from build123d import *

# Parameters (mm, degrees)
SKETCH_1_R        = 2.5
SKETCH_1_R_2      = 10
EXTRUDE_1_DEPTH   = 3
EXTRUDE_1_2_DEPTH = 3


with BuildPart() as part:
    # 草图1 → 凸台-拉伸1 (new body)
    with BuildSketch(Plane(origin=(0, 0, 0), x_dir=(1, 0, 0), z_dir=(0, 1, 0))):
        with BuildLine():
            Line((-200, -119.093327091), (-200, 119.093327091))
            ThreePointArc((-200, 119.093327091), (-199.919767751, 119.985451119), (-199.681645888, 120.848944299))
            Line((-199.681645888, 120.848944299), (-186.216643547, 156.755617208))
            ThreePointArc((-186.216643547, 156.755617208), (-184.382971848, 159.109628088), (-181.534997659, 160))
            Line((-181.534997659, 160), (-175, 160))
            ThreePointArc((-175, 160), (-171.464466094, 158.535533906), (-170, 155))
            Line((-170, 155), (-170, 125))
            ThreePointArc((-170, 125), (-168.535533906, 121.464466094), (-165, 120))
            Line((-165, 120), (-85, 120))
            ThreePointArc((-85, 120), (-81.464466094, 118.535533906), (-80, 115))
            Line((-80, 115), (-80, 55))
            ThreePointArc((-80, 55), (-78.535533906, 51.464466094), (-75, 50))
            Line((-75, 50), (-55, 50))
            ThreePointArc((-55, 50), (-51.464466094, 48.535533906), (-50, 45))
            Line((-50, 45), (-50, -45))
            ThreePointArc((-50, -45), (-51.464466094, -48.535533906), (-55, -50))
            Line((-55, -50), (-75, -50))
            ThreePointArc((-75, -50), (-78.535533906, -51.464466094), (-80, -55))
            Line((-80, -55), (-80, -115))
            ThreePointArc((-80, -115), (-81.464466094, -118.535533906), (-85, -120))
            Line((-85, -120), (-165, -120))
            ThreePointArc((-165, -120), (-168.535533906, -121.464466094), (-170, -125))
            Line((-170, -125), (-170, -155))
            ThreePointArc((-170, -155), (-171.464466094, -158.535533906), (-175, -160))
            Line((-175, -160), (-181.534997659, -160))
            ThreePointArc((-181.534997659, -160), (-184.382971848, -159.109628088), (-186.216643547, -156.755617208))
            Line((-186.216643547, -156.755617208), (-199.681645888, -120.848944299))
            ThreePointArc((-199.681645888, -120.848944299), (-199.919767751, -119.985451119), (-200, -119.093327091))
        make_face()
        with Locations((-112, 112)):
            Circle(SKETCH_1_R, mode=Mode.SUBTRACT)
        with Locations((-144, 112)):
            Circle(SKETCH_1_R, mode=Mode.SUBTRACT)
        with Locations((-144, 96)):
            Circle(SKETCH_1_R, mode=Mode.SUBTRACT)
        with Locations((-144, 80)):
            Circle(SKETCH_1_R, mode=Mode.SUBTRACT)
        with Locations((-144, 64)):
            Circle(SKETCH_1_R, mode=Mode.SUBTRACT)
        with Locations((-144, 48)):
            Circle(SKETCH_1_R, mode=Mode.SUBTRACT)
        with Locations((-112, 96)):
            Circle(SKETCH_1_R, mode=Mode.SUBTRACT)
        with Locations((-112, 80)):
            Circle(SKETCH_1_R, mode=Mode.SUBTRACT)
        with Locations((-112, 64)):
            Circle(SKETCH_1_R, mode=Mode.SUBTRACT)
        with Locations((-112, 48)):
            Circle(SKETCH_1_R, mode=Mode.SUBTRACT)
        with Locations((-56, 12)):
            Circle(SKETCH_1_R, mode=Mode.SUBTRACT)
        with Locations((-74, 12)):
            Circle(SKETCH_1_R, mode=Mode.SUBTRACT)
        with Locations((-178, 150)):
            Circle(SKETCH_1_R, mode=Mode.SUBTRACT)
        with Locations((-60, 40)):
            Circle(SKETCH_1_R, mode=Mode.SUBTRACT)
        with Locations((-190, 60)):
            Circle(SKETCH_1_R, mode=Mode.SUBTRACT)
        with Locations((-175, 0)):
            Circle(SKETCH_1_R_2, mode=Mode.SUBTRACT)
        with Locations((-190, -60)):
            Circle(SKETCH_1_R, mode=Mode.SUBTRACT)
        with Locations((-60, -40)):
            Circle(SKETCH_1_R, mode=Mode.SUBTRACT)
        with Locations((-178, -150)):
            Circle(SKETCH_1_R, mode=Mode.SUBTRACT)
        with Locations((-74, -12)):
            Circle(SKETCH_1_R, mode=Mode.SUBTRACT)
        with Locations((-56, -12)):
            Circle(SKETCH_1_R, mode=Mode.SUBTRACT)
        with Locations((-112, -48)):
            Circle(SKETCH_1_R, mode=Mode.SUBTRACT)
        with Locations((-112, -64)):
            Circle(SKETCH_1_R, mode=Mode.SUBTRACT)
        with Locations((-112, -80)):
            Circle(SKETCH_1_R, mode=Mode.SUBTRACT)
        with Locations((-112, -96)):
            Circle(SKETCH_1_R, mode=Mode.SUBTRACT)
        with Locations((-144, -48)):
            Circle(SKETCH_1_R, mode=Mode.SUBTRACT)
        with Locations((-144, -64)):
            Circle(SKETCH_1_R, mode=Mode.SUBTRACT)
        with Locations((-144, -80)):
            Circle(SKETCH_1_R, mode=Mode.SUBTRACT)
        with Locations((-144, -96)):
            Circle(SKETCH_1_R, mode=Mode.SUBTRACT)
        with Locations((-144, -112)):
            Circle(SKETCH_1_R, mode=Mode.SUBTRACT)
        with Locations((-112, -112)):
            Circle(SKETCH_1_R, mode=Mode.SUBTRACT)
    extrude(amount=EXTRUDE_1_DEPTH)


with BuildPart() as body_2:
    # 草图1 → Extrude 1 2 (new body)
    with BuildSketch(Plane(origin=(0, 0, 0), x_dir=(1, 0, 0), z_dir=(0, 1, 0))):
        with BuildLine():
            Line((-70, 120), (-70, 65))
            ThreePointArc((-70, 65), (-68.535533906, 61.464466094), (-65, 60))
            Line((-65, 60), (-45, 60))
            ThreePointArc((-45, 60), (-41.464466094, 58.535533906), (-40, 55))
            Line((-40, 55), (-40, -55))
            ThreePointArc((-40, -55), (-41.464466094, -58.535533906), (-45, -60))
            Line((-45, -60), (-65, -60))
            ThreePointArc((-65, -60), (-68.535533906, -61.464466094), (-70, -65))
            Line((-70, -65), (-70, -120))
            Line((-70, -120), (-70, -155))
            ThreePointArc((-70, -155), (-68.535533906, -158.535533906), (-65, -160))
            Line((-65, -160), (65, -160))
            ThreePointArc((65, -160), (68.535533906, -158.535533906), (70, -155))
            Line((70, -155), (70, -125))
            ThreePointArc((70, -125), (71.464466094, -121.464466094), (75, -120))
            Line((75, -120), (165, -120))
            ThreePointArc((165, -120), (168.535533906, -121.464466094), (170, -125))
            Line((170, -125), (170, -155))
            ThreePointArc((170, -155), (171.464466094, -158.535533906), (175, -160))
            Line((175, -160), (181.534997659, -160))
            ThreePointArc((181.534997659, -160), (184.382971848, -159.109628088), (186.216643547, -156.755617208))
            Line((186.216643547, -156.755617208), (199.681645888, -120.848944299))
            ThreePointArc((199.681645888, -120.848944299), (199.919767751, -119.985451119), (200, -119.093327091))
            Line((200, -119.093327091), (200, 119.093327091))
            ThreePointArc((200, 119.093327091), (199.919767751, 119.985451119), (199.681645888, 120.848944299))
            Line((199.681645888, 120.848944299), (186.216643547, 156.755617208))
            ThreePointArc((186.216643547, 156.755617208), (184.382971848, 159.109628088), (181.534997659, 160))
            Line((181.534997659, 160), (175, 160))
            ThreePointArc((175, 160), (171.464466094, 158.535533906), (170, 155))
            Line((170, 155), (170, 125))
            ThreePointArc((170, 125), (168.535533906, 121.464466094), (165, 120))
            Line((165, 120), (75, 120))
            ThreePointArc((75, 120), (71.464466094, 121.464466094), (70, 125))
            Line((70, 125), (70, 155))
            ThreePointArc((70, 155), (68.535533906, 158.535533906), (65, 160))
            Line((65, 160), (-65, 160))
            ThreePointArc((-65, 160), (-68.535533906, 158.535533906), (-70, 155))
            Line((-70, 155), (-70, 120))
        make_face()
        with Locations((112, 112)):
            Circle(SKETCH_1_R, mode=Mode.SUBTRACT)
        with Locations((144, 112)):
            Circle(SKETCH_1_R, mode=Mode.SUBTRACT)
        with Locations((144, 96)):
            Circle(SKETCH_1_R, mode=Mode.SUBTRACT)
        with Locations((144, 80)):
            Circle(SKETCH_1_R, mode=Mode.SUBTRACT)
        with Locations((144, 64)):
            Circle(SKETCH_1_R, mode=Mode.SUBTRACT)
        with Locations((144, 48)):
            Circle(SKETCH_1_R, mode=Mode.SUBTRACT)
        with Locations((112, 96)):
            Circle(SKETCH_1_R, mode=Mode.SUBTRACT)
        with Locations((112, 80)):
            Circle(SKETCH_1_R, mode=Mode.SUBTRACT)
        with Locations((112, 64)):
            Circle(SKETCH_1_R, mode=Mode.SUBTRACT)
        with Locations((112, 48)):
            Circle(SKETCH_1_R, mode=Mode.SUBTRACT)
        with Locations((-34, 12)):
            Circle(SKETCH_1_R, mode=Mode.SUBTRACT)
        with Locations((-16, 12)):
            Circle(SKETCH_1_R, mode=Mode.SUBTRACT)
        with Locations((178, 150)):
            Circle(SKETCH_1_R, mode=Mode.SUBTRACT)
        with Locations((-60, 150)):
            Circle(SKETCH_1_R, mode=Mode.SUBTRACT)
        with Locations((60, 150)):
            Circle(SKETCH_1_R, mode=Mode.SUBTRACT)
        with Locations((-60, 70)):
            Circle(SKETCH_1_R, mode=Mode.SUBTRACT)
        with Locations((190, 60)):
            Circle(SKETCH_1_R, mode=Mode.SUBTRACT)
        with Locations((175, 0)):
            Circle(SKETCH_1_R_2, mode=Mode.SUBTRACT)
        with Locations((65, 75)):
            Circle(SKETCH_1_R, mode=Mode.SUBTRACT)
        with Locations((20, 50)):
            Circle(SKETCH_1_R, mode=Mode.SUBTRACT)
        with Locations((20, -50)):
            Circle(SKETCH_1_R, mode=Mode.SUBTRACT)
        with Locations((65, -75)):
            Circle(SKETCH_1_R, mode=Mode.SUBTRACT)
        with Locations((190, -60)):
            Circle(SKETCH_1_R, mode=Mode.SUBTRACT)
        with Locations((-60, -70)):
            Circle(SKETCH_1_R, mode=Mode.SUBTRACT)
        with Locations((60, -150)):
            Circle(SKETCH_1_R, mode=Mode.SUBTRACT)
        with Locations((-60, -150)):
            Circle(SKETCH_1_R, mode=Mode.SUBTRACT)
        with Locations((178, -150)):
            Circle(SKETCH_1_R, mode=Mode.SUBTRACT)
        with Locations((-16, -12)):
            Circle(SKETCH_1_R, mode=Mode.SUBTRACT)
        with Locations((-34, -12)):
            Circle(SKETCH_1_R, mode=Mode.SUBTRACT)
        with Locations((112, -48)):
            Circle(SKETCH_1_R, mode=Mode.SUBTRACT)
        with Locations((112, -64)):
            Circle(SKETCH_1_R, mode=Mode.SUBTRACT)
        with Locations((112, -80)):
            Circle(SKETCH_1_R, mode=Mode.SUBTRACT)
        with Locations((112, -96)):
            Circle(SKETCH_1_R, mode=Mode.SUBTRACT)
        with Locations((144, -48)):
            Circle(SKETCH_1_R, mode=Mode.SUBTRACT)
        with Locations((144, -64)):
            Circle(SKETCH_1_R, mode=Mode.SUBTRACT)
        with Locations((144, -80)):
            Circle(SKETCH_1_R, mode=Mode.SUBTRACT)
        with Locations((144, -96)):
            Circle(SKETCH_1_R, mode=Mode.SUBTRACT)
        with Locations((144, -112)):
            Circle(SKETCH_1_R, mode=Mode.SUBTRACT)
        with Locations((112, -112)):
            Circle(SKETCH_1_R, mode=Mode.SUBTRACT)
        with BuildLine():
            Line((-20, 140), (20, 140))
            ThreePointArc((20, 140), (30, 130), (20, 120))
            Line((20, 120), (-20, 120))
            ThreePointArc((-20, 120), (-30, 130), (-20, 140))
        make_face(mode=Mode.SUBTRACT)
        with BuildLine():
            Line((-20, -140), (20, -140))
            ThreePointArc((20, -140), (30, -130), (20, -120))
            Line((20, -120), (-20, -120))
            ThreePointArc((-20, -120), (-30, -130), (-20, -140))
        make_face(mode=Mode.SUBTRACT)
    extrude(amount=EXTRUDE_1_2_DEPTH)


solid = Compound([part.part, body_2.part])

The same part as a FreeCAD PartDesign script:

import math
import FreeCAD as App
import Part
import Sketcher

V = App.Vector

doc = App.newDocument("Part")
body = doc.addObject("PartDesign::Body", "Body")

# Sketch on XZ plane
sketch1 = body.newObject("Sketcher::SketchObject", "Sketch")
sketch1.AttachmentSupport = (doc.getObject("XZ_Plane"), [""])
sketch1.MapMode = "FlatFace"
sketch1.addGeometry([
    Part.LineSegment(V(-200, -119.1, 0), V(-200, 119.1, 0)),  # 0
    Part.ArcOfCircle(Part.Circle(V(-195, 119.1, 0), V(0, 0, 1), 5), math.radians(159), math.radians(180)),  # 1
    Part.LineSegment(V(-199.7, 120.8, 0), V(-186.2, 156.8, 0)),  # 2
    Part.ArcOfCircle(Part.Circle(V(-181.5, 155, 0), V(0, 0, 1), 5), math.radians(90), math.radians(159)),  # 3
    Part.LineSegment(V(-181.5, 160, 0), V(-175, 160, 0)),  # 4
    Part.ArcOfCircle(Part.Circle(V(-175, 155, 0), V(0, 0, 1), 5), math.radians(0), math.radians(90)),  # 5
    Part.LineSegment(V(-170, 155, 0), V(-170, 125, 0)),  # 6
    Part.ArcOfCircle(Part.Circle(V(-165, 125, 0), V(0, 0, 1), 5), math.radians(180), math.radians(270)),  # 7
    Part.LineSegment(V(-165, 120, 0), V(-85, 120, 0)),  # 8
    Part.ArcOfCircle(Part.Circle(V(-85, 115, 0), V(0, 0, 1), 5), math.radians(0), math.radians(90)),  # 9
    Part.LineSegment(V(-80, 115, 0), V(-80, 55, 0)),  # 10
    Part.ArcOfCircle(Part.Circle(V(-75, 55, 0), V(0, 0, 1), 5), math.radians(180), math.radians(270)),  # 11
    Part.LineSegment(V(-75, 50, 0), V(-55, 50, 0)),  # 12
    Part.ArcOfCircle(Part.Circle(V(-55, 45, 0), V(0, 0, 1), 5), math.radians(0), math.radians(90)),  # 13
    Part.LineSegment(V(-50, 45, 0), V(-50, -45, 0)),  # 14
    Part.ArcOfCircle(Part.Circle(V(-55, -45, 0), V(0, 0, 1), 5), math.radians(-90), math.radians(0)),  # 15
    Part.LineSegment(V(-55, -50, 0), V(-75, -50, 0)),  # 16
    Part.ArcOfCircle(Part.Circle(V(-75, -55, 0), V(0, 0, 1), 5), math.radians(90), math.radians(180)),  # 17
    Part.LineSegment(V(-80, -55, 0), V(-80, -115, 0)),  # 18
    Part.ArcOfCircle(Part.Circle(V(-85, -115, 0), V(0, 0, 1), 5), math.radians(-90), math.radians(0)),  # 19
    Part.LineSegment(V(-85, -120, 0), V(-165, -120, 0)),  # 20
    Part.ArcOfCircle(Part.Circle(V(-165, -125, 0), V(0, 0, 1), 5), math.radians(90), math.radians(180)),  # 21
    Part.LineSegment(V(-170, -125, 0), V(-170, -155, 0)),  # 22
    Part.ArcOfCircle(Part.Circle(V(-175, -155, 0), V(0, 0, 1), 5), math.radians(-90), math.radians(0)),  # 23
    Part.LineSegment(V(-175, -160, 0), V(-181.5, -160, 0)),  # 24
    Part.ArcOfCircle(Part.Circle(V(-181.5, -155, 0), V(0, 0, 1), 5), math.radians(-159), math.radians(-90)),  # 25
    Part.LineSegment(V(-186.2, -156.8, 0), V(-199.7, -120.8, 0)),  # 26
    Part.ArcOfCircle(Part.Circle(V(-195, -119.1, 0), V(0, 0, 1), 5), math.radians(180), math.radians(201)),  # 27
    Part.Circle(V(-112, 112, 0), V(0, 0, 1), 2.5),  # 28
    Part.Circle(V(-112, 96, 0), V(0, 0, 1), 2.5),  # 29
    Part.Circle(V(-112, 80, 0), V(0, 0, 1), 2.5),  # 30
    Part.Circle(V(-60, 40, 0), V(0, 0, 1), 2.5),  # 31
    Part.Circle(V(-56, 12, 0), V(0, 0, 1), 2.5),  # 32
    Part.Circle(V(-74, 12, 0), V(0, 0, 1), 2.5),  # 33
    Part.Circle(V(-112, 64, 0), V(0, 0, 1), 2.5),  # 34
    Part.Circle(V(-112, 48, 0), V(0, 0, 1), 2.5),  # 35
    Part.Circle(V(-144, 112, 0), V(0, 0, 1), 2.5),  # 36
    Part.Circle(V(-144, 96, 0), V(0, 0, 1), 2.5),  # 37
    Part.Circle(V(-144, 80, 0), V(0, 0, 1), 2.5),  # 38
    Part.Circle(V(-178, 150, 0), V(0, 0, 1), 2.5),  # 39
    Part.Circle(V(-144, 64, 0), V(0, 0, 1), 2.5),  # 40
    Part.Circle(V(-144, 48, 0), V(0, 0, 1), 2.5),  # 41
    Part.Circle(V(-190, 60, 0), V(0, 0, 1), 2.5),  # 42
    Part.Circle(V(-56, -12, 0), V(0, 0, 1), 2.5),  # 43
    Part.Circle(V(-74, -12, 0), V(0, 0, 1), 2.5),  # 44
    Part.Circle(V(-60, -40, 0), V(0, 0, 1), 2.5),  # 45
    Part.Circle(V(-112, -48, 0), V(0, 0, 1), 2.5),  # 46
    Part.Circle(V(-112, -64, 0), V(0, 0, 1), 2.5),  # 47
    Part.Circle(V(-112, -80, 0), V(0, 0, 1), 2.5),  # 48
    Part.Circle(V(-112, -96, 0), V(0, 0, 1), 2.5),  # 49
    Part.Circle(V(-112, -112, 0), V(0, 0, 1), 2.5),  # 50
    Part.Circle(V(-144, -48, 0), V(0, 0, 1), 2.5),  # 51
    Part.Circle(V(-144, -64, 0), V(0, 0, 1), 2.5),  # 52
    Part.Circle(V(-175, 0, 0), V(0, 0, 1), 10),  # 53
    Part.Circle(V(-190, -60, 0), V(0, 0, 1), 2.5),  # 54
    Part.Circle(V(-144, -80, 0), V(0, 0, 1), 2.5),  # 55
    Part.Circle(V(-144, -96, 0), V(0, 0, 1), 2.5),  # 56
    Part.Circle(V(-144, -112, 0), V(0, 0, 1), 2.5),  # 57
    Part.Circle(V(-178, -150, 0), V(0, 0, 1), 2.5),  # 58
], False)
sketch1.addConstraint([
    Sketcher.Constraint("Tangent", 0, 2, 1, 2),
    Sketcher.Constraint("Tangent", 1, 1, 2, 1),
    Sketcher.Constraint("Tangent", 2, 2, 3, 2),
    Sketcher.Constraint("Tangent", 3, 1, 4, 1),
    Sketcher.Constraint("Tangent", 4, 2, 5, 2),
    Sketcher.Constraint("Tangent", 5, 1, 6, 1),
    Sketcher.Constraint("Tangent", 6, 2, 7, 1),
    Sketcher.Constraint("Tangent", 7, 2, 8, 1),
    Sketcher.Constraint("Tangent", 8, 2, 9, 2),
    Sketcher.Constraint("Tangent", 9, 1, 10, 1),
    Sketcher.Constraint("Tangent", 10, 2, 11, 1),
    Sketcher.Constraint("Tangent", 11, 2, 12, 1),
    Sketcher.Constraint("Tangent", 12, 2, 13, 2),
    Sketcher.Constraint("Tangent", 13, 1, 14, 1),
    Sketcher.Constraint("Tangent", 14, 2, 15, 2),
    Sketcher.Constraint("Tangent", 15, 1, 16, 1),
    Sketcher.Constraint("Tangent", 16, 2, 17, 1),
    Sketcher.Constraint("Tangent", 17, 2, 18, 1),
    Sketcher.Constraint("Tangent", 18, 2, 19, 2),
    Sketcher.Constraint("Tangent", 19, 1, 20, 1),
    Sketcher.Constraint("Tangent", 20, 2, 21, 1),
    Sketcher.Constraint("Tangent", 21, 2, 22, 1),
    Sketcher.Constraint("Tangent", 22, 2, 23, 2),
    Sketcher.Constraint("Tangent", 23, 1, 24, 1),
    Sketcher.Constraint("Tangent", 24, 2, 25, 2),
    Sketcher.Constraint("Tangent", 25, 1, 26, 1),
    Sketcher.Constraint("Tangent", 26, 2, 27, 2),
    Sketcher.Constraint("Tangent", 27, 1, 0, 1),
    Sketcher.Constraint("Vertical", 0),
    Sketcher.Constraint("Horizontal", 4),
    Sketcher.Constraint("Vertical", 6),
    Sketcher.Constraint("Horizontal", 8),
    Sketcher.Constraint("Vertical", 10),
    Sketcher.Constraint("Horizontal", 12),
    Sketcher.Constraint("Vertical", 14),
    Sketcher.Constraint("Horizontal", 16),
    Sketcher.Constraint("Vertical", 18),
    Sketcher.Constraint("Horizontal", 20),
    Sketcher.Constraint("Vertical", 22),
    Sketcher.Constraint("Horizontal", 24),
    Sketcher.Constraint("Equal", 1, 3),
    Sketcher.Constraint("Equal", 3, 5),
    Sketcher.Constraint("Equal", 5, 7),
    Sketcher.Constraint("Equal", 7, 9),
    Sketcher.Constraint("Equal", 9, 11),
    Sketcher.Constraint("Equal", 11, 13),
    Sketcher.Constraint("Equal", 13, 15),
    Sketcher.Constraint("Equal", 15, 17),
    Sketcher.Constraint("Equal", 17, 19),
    Sketcher.Constraint("Equal", 19, 21),
    Sketcher.Constraint("Equal", 21, 23),
    Sketcher.Constraint("Equal", 23, 25),
    Sketcher.Constraint("Equal", 25, 27),
    Sketcher.Constraint("Equal", 28, 29),
    Sketcher.Constraint("Equal", 29, 30),
    Sketcher.Constraint("Equal", 30, 31),
    Sketcher.Constraint("Equal", 31, 32),
    Sketcher.Constraint("Equal", 32, 33),
    Sketcher.Constraint("Equal", 33, 34),
    Sketcher.Constraint("Equal", 34, 35),
    Sketcher.Constraint("Equal", 35, 36),
    Sketcher.Constraint("Equal", 36, 37),
    Sketcher.Constraint("Equal", 37, 38),
    Sketcher.Constraint("Equal", 38, 39),
    Sketcher.Constraint("Equal", 39, 40),
    Sketcher.Constraint("Equal", 40, 41),
    Sketcher.Constraint("Equal", 41, 42),
    Sketcher.Constraint("Equal", 42, 43),
    Sketcher.Constraint("Equal", 43, 44),
    Sketcher.Constraint("Equal", 44, 45),
    Sketcher.Constraint("Equal", 45, 46),
    Sketcher.Constraint("Equal", 46, 47),
    Sketcher.Constraint("Equal", 47, 48),
    Sketcher.Constraint("Equal", 48, 49),
    Sketcher.Constraint("Equal", 49, 50),
    Sketcher.Constraint("Equal", 50, 51),
    Sketcher.Constraint("Equal", 51, 52),
    Sketcher.Constraint("Equal", 52, 54),
    Sketcher.Constraint("Equal", 54, 55),
    Sketcher.Constraint("Equal", 55, 56),
    Sketcher.Constraint("Equal", 56, 57),
    Sketcher.Constraint("Equal", 57, 58),
    Sketcher.Constraint("Symmetric", 11, 3, 17, 3, -1),
    Sketcher.Constraint("Symmetric", 7, 3, 21, 3, -1),
    Sketcher.Constraint("Symmetric", 3, 3, 25, 3, -1),
    Sketcher.Constraint("Symmetric", 32, 3, 43, 3, -1),
    Sketcher.Constraint("Symmetric", 33, 3, 44, 3, -1),
    Sketcher.Constraint("Symmetric", 31, 3, 45, 3, -1),
    Sketcher.Constraint("Symmetric", 35, 3, 46, 3, -1),
    Sketcher.Constraint("Symmetric", 34, 3, 47, 3, -1),
    Sketcher.Constraint("Symmetric", 30, 3, 48, 3, -1),
    Sketcher.Constraint("Symmetric", 29, 3, 49, 3, -1),
    Sketcher.Constraint("Symmetric", 28, 3, 50, 3, -1),
    Sketcher.Constraint("Symmetric", 41, 3, 51, 3, -1),
    Sketcher.Constraint("Symmetric", 40, 3, 52, 3, -1),
    Sketcher.Constraint("Symmetric", 42, 3, 54, 3, -1),
    Sketcher.Constraint("Symmetric", 38, 3, 55, 3, -1),
    Sketcher.Constraint("Symmetric", 37, 3, 56, 3, -1),
    Sketcher.Constraint("Symmetric", 36, 3, 57, 3, -1),
    Sketcher.Constraint("Symmetric", 39, 3, 58, 3, -1),
    Sketcher.Constraint("PointOnObject", 53, 3, -1),
    Sketcher.Constraint("Horizontal", 32, 3, 33, 3),
    Sketcher.Constraint("Horizontal", 28, 3, 36, 3),
    Sketcher.Constraint("Horizontal", 29, 3, 37, 3),
    Sketcher.Constraint("Horizontal", 30, 3, 38, 3),
    Sketcher.Constraint("Horizontal", 34, 3, 40, 3),
    Sketcher.Constraint("Horizontal", 35, 3, 41, 3),
    Sketcher.Constraint("Vertical", 28, 3, 29, 3),
    Sketcher.Constraint("Vertical", 29, 3, 30, 3),
    Sketcher.Constraint("Vertical", 30, 3, 34, 3),
    Sketcher.Constraint("Vertical", 34, 3, 35, 3),
    Sketcher.Constraint("Vertical", 36, 3, 37, 3),
    Sketcher.Constraint("Vertical", 37, 3, 38, 3),
    Sketcher.Constraint("Vertical", 38, 3, 40, 3),
    Sketcher.Constraint("Vertical", 40, 3, 41, 3),
    Sketcher.Constraint("Vertical", 23, 3, 53, 3),
    Sketcher.Constraint("Vertical", 2, 2, 25, 1),
    Sketcher.Constraint("Diameter", 28, 5.0),
    Sketcher.Constraint("Diameter", 53, 20.0),
    Sketcher.Constraint("Radius", 1, 5.0),
    Sketcher.Constraint("DistanceX", 8, 1, 8, 2, 80.0),
    Sketcher.Constraint("DistanceX", 12, 1, 12, 2, 20.0),
    Sketcher.Constraint("DistanceY", 6, 2, 6, 1, 30.0),
    Sketcher.Constraint("DistanceY", 10, 2, 10, 1, 60.0),
    Sketcher.Constraint("DistanceY", 14, 2, 14, 1, 90.0),
    Sketcher.Constraint("DistanceX", 1, 3, -1, 1, 195.0),
    Sketcher.Constraint("DistanceX", 5, 3, -1, 1, 175.0),
    Sketcher.Constraint("DistanceX", 28, 3, -1, 1, 112.0),
    Sketcher.Constraint("DistanceY", -1, 1, 28, 3, 112.0),
    Sketcher.Constraint("DistanceY", -1, 1, 29, 3, 96.0),
    Sketcher.Constraint("DistanceY", -1, 1, 30, 3, 80.0),
    Sketcher.Constraint("DistanceX", 31, 3, -1, 1, 60.0),
    Sketcher.Constraint("DistanceY", -1, 1, 31, 3, 40.0),
    Sketcher.Constraint("DistanceX", 32, 3, -1, 1, 56.0),
    Sketcher.Constraint("DistanceY", -1, 1, 32, 3, 12.0),
    Sketcher.Constraint("DistanceX", 33, 3, -1, 1, 74.0),
    Sketcher.Constraint("DistanceY", -1, 1, 34, 3, 64.0),
    Sketcher.Constraint("DistanceY", -1, 1, 35, 3, 48.0),
    Sketcher.Constraint("DistanceX", 36, 3, -1, 1, 144.0),
    Sketcher.Constraint("DistanceX", 39, 3, -1, 1, 178.0),
    Sketcher.Constraint("DistanceY", -1, 1, 39, 3, 150.0),
    Sketcher.Constraint("DistanceX", 42, 3, -1, 1, 190.0),
    Sketcher.Constraint("DistanceY", -1, 1, 42, 3, 60.0),
    Sketcher.Constraint("DistanceX", 4, 1, 4, 2, 6.534998),
    Sketcher.Constraint("DistanceY", 0, 1, 0, 2, 238.186654),
])
pad1 = body.newObject("PartDesign::Pad", "Pad")
pad1.Profile = sketch1
pad1.Length = 3
pad1.Reversed = True
body2 = doc.addObject("PartDesign::Body", "Body001")

# Sketch on XZ plane
sketch2 = body2.newObject("Sketcher::SketchObject", "Sketch001")
sketch2.AttachmentSupport = (doc.getObject("XZ_Plane001"), [""])
sketch2.MapMode = "FlatFace"
sketch2.addGeometry([
    Part.ArcOfCircle(Part.Circle(V(-65, -65, 0), V(0, 0, 1), 5), math.radians(90), math.radians(180)),  # 0
    Part.LineSegment(V(-65, -60, 0), V(-45, -60, 0)),  # 1
    Part.ArcOfCircle(Part.Circle(V(-45, -55, 0), V(0, 0, 1), 5), math.radians(-90), math.radians(0)),  # 2
    Part.LineSegment(V(-40, -55, 0), V(-40, 55, 0)),  # 3
    Part.ArcOfCircle(Part.Circle(V(-45, 55, 0), V(0, 0, 1), 5), math.radians(0), math.radians(90)),  # 4
    Part.LineSegment(V(-45, 60, 0), V(-65, 60, 0)),  # 5
    Part.ArcOfCircle(Part.Circle(V(-65, 65, 0), V(0, 0, 1), 5), math.radians(180), math.radians(270)),  # 6
    Part.LineSegment(V(-70, 65, 0), V(-70, 155, 0)),  # 7
    Part.ArcOfCircle(Part.Circle(V(-65, 155, 0), V(0, 0, 1), 5), math.radians(90), math.radians(180)),  # 8
    Part.LineSegment(V(-65, 160, 0), V(65, 160, 0)),  # 9
    Part.ArcOfCircle(Part.Circle(V(65, 155, 0), V(0, 0, 1), 5), math.radians(0), math.radians(90)),  # 10
    Part.LineSegment(V(70, 155, 0), V(70, 125, 0)),  # 11
    Part.ArcOfCircle(Part.Circle(V(75, 125, 0), V(0, 0, 1), 5), math.radians(180), math.radians(270)),  # 12
    Part.LineSegment(V(75, 120, 0), V(165, 120, 0)),  # 13
    Part.ArcOfCircle(Part.Circle(V(165, 125, 0), V(0, 0, 1), 5), math.radians(-90), math.radians(0)),  # 14
    Part.LineSegment(V(170, 125, 0), V(170, 155, 0)),  # 15
    Part.ArcOfCircle(Part.Circle(V(175, 155, 0), V(0, 0, 1), 5), math.radians(90), math.radians(180)),  # 16
    Part.LineSegment(V(175, 160, 0), V(181.5, 160, 0)),  # 17
    Part.ArcOfCircle(Part.Circle(V(181.5, 155, 0), V(0, 0, 1), 5), math.radians(21), math.radians(90)),  # 18
    Part.LineSegment(V(186.2, 156.8, 0), V(199.7, 120.8, 0)),  # 19
    Part.ArcOfCircle(Part.Circle(V(195, 119.1, 0), V(0, 0, 1), 5), math.radians(0), math.radians(21)),  # 20
    Part.LineSegment(V(200, 119.1, 0), V(200, -119.1, 0)),  # 21
    Part.ArcOfCircle(Part.Circle(V(195, -119.1, 0), V(0, 0, 1), 5), math.radians(-21), math.radians(0)),  # 22
    Part.LineSegment(V(199.7, -120.8, 0), V(186.2, -156.8, 0)),  # 23
    Part.ArcOfCircle(Part.Circle(V(181.5, -155, 0), V(0, 0, 1), 5), math.radians(-90), math.radians(-21)),  # 24
    Part.LineSegment(V(181.5, -160, 0), V(175, -160, 0)),  # 25
    Part.ArcOfCircle(Part.Circle(V(175, -155, 0), V(0, 0, 1), 5), math.radians(180), math.radians(270)),  # 26
    Part.LineSegment(V(170, -155, 0), V(170, -125, 0)),  # 27
    Part.ArcOfCircle(Part.Circle(V(165, -125, 0), V(0, 0, 1), 5), math.radians(0), math.radians(90)),  # 28
    Part.LineSegment(V(165, -120, 0), V(75, -120, 0)),  # 29
    Part.ArcOfCircle(Part.Circle(V(75, -125, 0), V(0, 0, 1), 5), math.radians(90), math.radians(180)),  # 30
    Part.LineSegment(V(70, -125, 0), V(70, -155, 0)),  # 31
    Part.ArcOfCircle(Part.Circle(V(65, -155, 0), V(0, 0, 1), 5), math.radians(-90), math.radians(0)),  # 32
    Part.LineSegment(V(65, -160, 0), V(-65, -160, 0)),  # 33
    Part.ArcOfCircle(Part.Circle(V(-65, -155, 0), V(0, 0, 1), 5), math.radians(180), math.radians(270)),  # 34
    Part.LineSegment(V(-70, -155, 0), V(-70, -65, 0)),  # 35
    Part.Circle(V(-60, 150, 0), V(0, 0, 1), 2.5),  # 36
    Part.LineSegment(V(20, 140, 0), V(-20, 140, 0)),  # 37
    Part.ArcOfCircle(Part.Circle(V(-20, 130, 0), V(0, 0, 1), 10), math.radians(90), math.radians(270)),  # 38
    Part.LineSegment(V(-20, 120, 0), V(20, 120, 0)),  # 39
    Part.ArcOfCircle(Part.Circle(V(20, 130, 0), V(0, 0, 1), 10), math.radians(-90), math.radians(90)),  # 40
    Part.Circle(V(60, 150, 0), V(0, 0, 1), 2.5),  # 41
    Part.Circle(V(-60, 70, 0), V(0, 0, 1), 2.5),  # 42
    Part.Circle(V(-34, 12, 0), V(0, 0, 1), 2.5),  # 43
    Part.Circle(V(-16, 12, 0), V(0, 0, 1), 2.5),  # 44
    Part.Circle(V(20, 50, 0), V(0, 0, 1), 2.5),  # 45
    Part.Circle(V(112, 112, 0), V(0, 0, 1), 2.5),  # 46
    Part.Circle(V(112, 96, 0), V(0, 0, 1), 2.5),  # 47
    Part.Circle(V(112, 80, 0), V(0, 0, 1), 2.5),  # 48
    Part.Circle(V(178, 150, 0), V(0, 0, 1), 2.5),  # 49
    Part.Circle(V(144, 112, 0), V(0, 0, 1), 2.5),  # 50
    Part.Circle(V(144, 96, 0), V(0, 0, 1), 2.5),  # 51
    Part.Circle(V(144, 80, 0), V(0, 0, 1), 2.5),  # 52
    Part.Circle(V(65, 75, 0), V(0, 0, 1), 2.5),  # 53
    Part.Circle(V(112, 64, 0), V(0, 0, 1), 2.5),  # 54
    Part.Circle(V(112, 48, 0), V(0, 0, 1), 2.5),  # 55
    Part.Circle(V(144, 64, 0), V(0, 0, 1), 2.5),  # 56
    Part.Circle(V(144, 48, 0), V(0, 0, 1), 2.5),  # 57
    Part.Circle(V(190, 60, 0), V(0, 0, 1), 2.5),  # 58
    Part.Circle(V(-34, -12, 0), V(0, 0, 1), 2.5),  # 59
    Part.Circle(V(-16, -12, 0), V(0, 0, 1), 2.5),  # 60
    Part.Circle(V(-60, -70, 0), V(0, 0, 1), 2.5),  # 61
    Part.Circle(V(20, -50, 0), V(0, 0, 1), 2.5),  # 62
    Part.Circle(V(-60, -150, 0), V(0, 0, 1), 2.5),  # 63
    Part.ArcOfCircle(Part.Circle(V(-20, -130, 0), V(0, 0, 1), 10), math.radians(90), math.radians(270)),  # 64
    Part.LineSegment(V(-20, -140, 0), V(20, -140, 0)),  # 65
    Part.ArcOfCircle(Part.Circle(V(20, -130, 0), V(0, 0, 1), 10), math.radians(-90), math.radians(90)),  # 66
    Part.LineSegment(V(20, -120, 0), V(-20, -120, 0)),  # 67
    Part.Circle(V(60, -150, 0), V(0, 0, 1), 2.5),  # 68
    Part.Circle(V(65, -75, 0), V(0, 0, 1), 2.5),  # 69
    Part.Circle(V(112, -48, 0), V(0, 0, 1), 2.5),  # 70
    Part.Circle(V(112, -64, 0), V(0, 0, 1), 2.5),  # 71
    Part.Circle(V(175, 0, 0), V(0, 0, 1), 10),  # 72
    Part.Circle(V(144, -48, 0), V(0, 0, 1), 2.5),  # 73
    Part.Circle(V(144, -64, 0), V(0, 0, 1), 2.5),  # 74
    Part.Circle(V(190, -60, 0), V(0, 0, 1), 2.5),  # 75
    Part.Circle(V(112, -80, 0), V(0, 0, 1), 2.5),  # 76
    Part.Circle(V(112, -96, 0), V(0, 0, 1), 2.5),  # 77
    Part.Circle(V(112, -112, 0), V(0, 0, 1), 2.5),  # 78
    Part.Circle(V(144, -80, 0), V(0, 0, 1), 2.5),  # 79
    Part.Circle(V(144, -96, 0), V(0, 0, 1), 2.5),  # 80
    Part.Circle(V(144, -112, 0), V(0, 0, 1), 2.5),  # 81
    Part.Circle(V(178, -150, 0), V(0, 0, 1), 2.5),  # 82
], False)
sketch2.addConstraint([
    Sketcher.Constraint("Tangent", 0, 1, 1, 1),
    Sketcher.Constraint("Tangent", 1, 2, 2, 1),
    Sketcher.Constraint("Tangent", 2, 2, 3, 1),
    Sketcher.Constraint("Tangent", 3, 2, 4, 1),
    Sketcher.Constraint("Tangent", 4, 2, 5, 1),
    Sketcher.Constraint("Tangent", 5, 2, 6, 2),
    Sketcher.Constraint("Tangent", 6, 1, 7, 1),
    Sketcher.Constraint("Tangent", 7, 2, 8, 2),
    Sketcher.Constraint("Tangent", 8, 1, 9, 1),
    Sketcher.Constraint("Tangent", 9, 2, 10, 2),
    Sketcher.Constraint("Tangent", 10, 1, 11, 1),
    Sketcher.Constraint("Tangent", 11, 2, 12, 1),
    Sketcher.Constraint("Tangent", 12, 2, 13, 1),
    Sketcher.Constraint("Tangent", 13, 2, 14, 1),
    Sketcher.Constraint("Tangent", 14, 2, 15, 1),
    Sketcher.Constraint("Tangent", 15, 2, 16, 2),
    Sketcher.Constraint("Tangent", 16, 1, 17, 1),
    Sketcher.Constraint("Tangent", 17, 2, 18, 2),
    Sketcher.Constraint("Tangent", 18, 1, 19, 1),
    Sketcher.Constraint("Tangent", 19, 2, 20, 2),
    Sketcher.Constraint("Tangent", 20, 1, 21, 1),
    Sketcher.Constraint("Tangent", 21, 2, 22, 2),
    Sketcher.Constraint("Tangent", 22, 1, 23, 1),
    Sketcher.Constraint("Tangent", 23, 2, 24, 2),
    Sketcher.Constraint("Tangent", 24, 1, 25, 1),
    Sketcher.Constraint("Tangent", 25, 2, 26, 2),
    Sketcher.Constraint("Tangent", 26, 1, 27, 1),
    Sketcher.Constraint("Tangent", 27, 2, 28, 1),
    Sketcher.Constraint("Tangent", 28, 2, 29, 1),
    Sketcher.Constraint("Tangent", 29, 2, 30, 1),
    Sketcher.Constraint("Tangent", 30, 2, 31, 1),
    Sketcher.Constraint("Tangent", 31, 2, 32, 2),
    Sketcher.Constraint("Tangent", 32, 1, 33, 1),
    Sketcher.Constraint("Tangent", 33, 2, 34, 2),
    Sketcher.Constraint("Tangent", 34, 1, 35, 1),
    Sketcher.Constraint("Tangent", 35, 2, 0, 2),
    Sketcher.Constraint("Tangent", 37, 2, 38, 1),
    Sketcher.Constraint("Tangent", 38, 2, 39, 1),
    Sketcher.Constraint("Tangent", 39, 2, 40, 1),
    Sketcher.Constraint("Tangent", 40, 2, 37, 1),
    Sketcher.Constraint("Tangent", 64, 2, 65, 1),
    Sketcher.Constraint("Tangent", 65, 2, 66, 1),
    Sketcher.Constraint("Tangent", 66, 2, 67, 1),
    Sketcher.Constraint("Tangent", 67, 2, 64, 1),
    Sketcher.Constraint("Horizontal", 1),
    Sketcher.Constraint("Vertical", 3),
    Sketcher.Constraint("Horizontal", 5),
    Sketcher.Constraint("Vertical", 7),
    Sketcher.Constraint("Horizontal", 9),
    Sketcher.Constraint("Vertical", 11),
    Sketcher.Constraint("Horizontal", 13),
    Sketcher.Constraint("Vertical", 15),
    Sketcher.Constraint("Horizontal", 17),
    Sketcher.Constraint("Vertical", 21),
    Sketcher.Constraint("Horizontal", 25),
    Sketcher.Constraint("Vertical", 27),
    Sketcher.Constraint("Horizontal", 29),
    Sketcher.Constraint("Vertical", 31),
    Sketcher.Constraint("Horizontal", 33),
    Sketcher.Constraint("Vertical", 35),
    Sketcher.Constraint("Horizontal", 37),
    Sketcher.Constraint("Horizontal", 39),
    Sketcher.Constraint("Horizontal", 65),
    Sketcher.Constraint("Horizontal", 67),
    Sketcher.Constraint("Equal", 0, 2),
    Sketcher.Constraint("Equal", 2, 4),
    Sketcher.Constraint("Equal", 4, 6),
    Sketcher.Constraint("Equal", 6, 8),
    Sketcher.Constraint("Equal", 8, 10),
    Sketcher.Constraint("Equal", 10, 12),
    Sketcher.Constraint("Equal", 12, 14),
    Sketcher.Constraint("Equal", 14, 16),
    Sketcher.Constraint("Equal", 16, 18),
    Sketcher.Constraint("Equal", 18, 20),
    Sketcher.Constraint("Equal", 20, 22),
    Sketcher.Constraint("Equal", 22, 24),
    Sketcher.Constraint("Equal", 24, 26),
    Sketcher.Constraint("Equal", 26, 28),
    Sketcher.Constraint("Equal", 28, 30),
    Sketcher.Constraint("Equal", 30, 32),
    Sketcher.Constraint("Equal", 32, 34),
    Sketcher.Constraint("Equal", 36, 41),
    Sketcher.Constraint("Equal", 41, 42),
    Sketcher.Constraint("Equal", 42, 43),
    Sketcher.Constraint("Equal", 43, 44),
    Sketcher.Constraint("Equal", 44, 45),
    Sketcher.Constraint("Equal", 45, 46),
    Sketcher.Constraint("Equal", 46, 47),
    Sketcher.Constraint("Equal", 47, 48),
    Sketcher.Constraint("Equal", 48, 49),
    Sketcher.Constraint("Equal", 49, 50),
    Sketcher.Constraint("Equal", 50, 51),
    Sketcher.Constraint("Equal", 51, 52),
    Sketcher.Constraint("Equal", 52, 53),
    Sketcher.Constraint("Equal", 53, 54),
    Sketcher.Constraint("Equal", 54, 55),
    Sketcher.Constraint("Equal", 55, 56),
    Sketcher.Constraint("Equal", 56, 57),
    Sketcher.Constraint("Equal", 57, 58),
    Sketcher.Constraint("Equal", 58, 59),
    Sketcher.Constraint("Equal", 59, 60),
    Sketcher.Constraint("Equal", 60, 61),
    Sketcher.Constraint("Equal", 61, 62),
    Sketcher.Constraint("Equal", 62, 63),
    Sketcher.Constraint("Equal", 40, 64),
    Sketcher.Constraint("Equal", 63, 68),
    Sketcher.Constraint("Equal", 68, 69),
    Sketcher.Constraint("Equal", 69, 70),
    Sketcher.Constraint("Equal", 70, 71),
    Sketcher.Constraint("Equal", 66, 72),
    Sketcher.Constraint("Equal", 71, 73),
    Sketcher.Constraint("Equal", 73, 74),
    Sketcher.Constraint("Equal", 74, 75),
    Sketcher.Constraint("Equal", 75, 76),
    Sketcher.Constraint("Equal", 76, 77),
    Sketcher.Constraint("Equal", 77, 78),
    Sketcher.Constraint("Equal", 78, 79),
    Sketcher.Constraint("Equal", 79, 80),
    Sketcher.Constraint("Equal", 80, 81),
    Sketcher.Constraint("Equal", 81, 82),
    Sketcher.Constraint("Symmetric", 8, 3, 32, 3, -1, 1),
    Sketcher.Constraint("Symmetric", 41, 3, 63, 3, -1, 1),
    Sketcher.Constraint("Symmetric", 40, 3, 64, 3, -1, 1),
    Sketcher.Constraint("Symmetric", 36, 3, 68, 3, -1, 1),
    Sketcher.Constraint("Symmetric", 36, 3, 41, 3, -2),
    Sketcher.Constraint("Symmetric", 0, 3, 6, 3, -1),
    Sketcher.Constraint("Symmetric", 18, 3, 24, 3, -1),
    Sketcher.Constraint("Symmetric", 14, 3, 28, 3, -1),
    Sketcher.Constraint("Symmetric", 43, 3, 59, 3, -1),
    Sketcher.Constraint("Symmetric", 44, 3, 60, 3, -1),
    Sketcher.Constraint("Symmetric", 42, 3, 61, 3, -1),
    Sketcher.Constraint("Symmetric", 45, 3, 62, 3, -1),
    Sketcher.Constraint("Symmetric", 53, 3, 69, 3, -1),
    Sketcher.Constraint("Symmetric", 55, 3, 70, 3, -1),
    Sketcher.Constraint("Symmetric", 54, 3, 71, 3, -1),
    Sketcher.Constraint("Symmetric", 57, 3, 73, 3, -1),
    Sketcher.Constraint("Symmetric", 56, 3, 74, 3, -1),
    Sketcher.Constraint("Symmetric", 58, 3, 75, 3, -1),
    Sketcher.Constraint("Symmetric", 48, 3, 76, 3, -1),
    Sketcher.Constraint("Symmetric", 47, 3, 77, 3, -1),
    Sketcher.Constraint("Symmetric", 46, 3, 78, 3, -1),
    Sketcher.Constraint("Symmetric", 52, 3, 79, 3, -1),
    Sketcher.Constraint("Symmetric", 51, 3, 80, 3, -1),
    Sketcher.Constraint("Symmetric", 50, 3, 81, 3, -1),
    Sketcher.Constraint("Symmetric", 49, 3, 82, 3, -1),
    Sketcher.Constraint("PointOnObject", 72, 3, -1),
    Sketcher.Constraint("Horizontal", 10, 3, 16, 3),
    Sketcher.Constraint("Horizontal", 43, 3, 44, 3),
    Sketcher.Constraint("Horizontal", 41, 3, 49, 3),
    Sketcher.Constraint("Horizontal", 46, 3, 50, 3),
    Sketcher.Constraint("Horizontal", 47, 3, 51, 3),
    Sketcher.Constraint("Horizontal", 48, 3, 52, 3),
    Sketcher.Constraint("Horizontal", 54, 3, 56, 3),
    Sketcher.Constraint("Horizontal", 55, 3, 57, 3),
    Sketcher.Constraint("Horizontal", 75, 3, 0, 1),
    Sketcher.Constraint("Horizontal", 13, 2, 38, 2),
    Sketcher.Constraint("Vertical", 12, 3, 30, 3),
    Sketcher.Constraint("Vertical", 36, 3, 42, 3),
    Sketcher.Constraint("Vertical", 40, 3, 45, 3),
    Sketcher.Constraint("Vertical", 46, 3, 47, 3),
    Sketcher.Constraint("Vertical", 47, 3, 48, 3),
    Sketcher.Constraint("Vertical", 50, 3, 51, 3),
    Sketcher.Constraint("Vertical", 51, 3, 52, 3),
    Sketcher.Constraint("Vertical", 32, 3, 53, 3),
    Sketcher.Constraint("Vertical", 48, 3, 54, 3),
    Sketcher.Constraint("Vertical", 54, 3, 55, 3),
    Sketcher.Constraint("Vertical", 52, 3, 56, 3),
    Sketcher.Constraint("Vertical", 56, 3, 57, 3),
    Sketcher.Constraint("Vertical", 38, 3, 64, 3),
    Sketcher.Constraint("Vertical", 62, 3, 66, 3),
    Sketcher.Constraint("Vertical", 26, 3, 72, 3),
    Sketcher.Constraint("Vertical", 19, 2, 22, 1),
    Sketcher.Constraint("Equal", 29, 7),
    Sketcher.Constraint("Diameter", 36, 5.0),
    Sketcher.Constraint("Diameter", 72, 20.0),
    Sketcher.Constraint("Radius", 0, 5.0),
    Sketcher.Constraint("DistanceX", 1, 1, 1, 2, 20.0),
    Sketcher.Constraint("DistanceX", 9, 1, 9, 2, 130.0),
    Sketcher.Constraint("DistanceX", 13, 1, 13, 2, 90.0),
    Sketcher.Constraint("DistanceX", 37, 2, 37, 1, 40.0),
    Sketcher.Constraint("DistanceY", 3, 1, 3, 2, 110.0),
    Sketcher.Constraint("DistanceY", 11, 2, 11, 1, 30.0),
    Sketcher.Constraint("DistanceX", -1, 1, 20, 3, 195.0),
    Sketcher.Constraint("DistanceX", 36, 3, -1, 1, 60.0),
    Sketcher.Constraint("DistanceY", -1, 1, 36, 3, 150.0),
    Sketcher.Constraint("DistanceY", -1, 1, 42, 3, 70.0),
    Sketcher.Constraint("DistanceX", 43, 3, -1, 1, 34.0),
    Sketcher.Constraint("DistanceY", -1, 1, 43, 3, 12.0),
    Sketcher.Constraint("DistanceX", 44, 3, -1, 1, 16.0),
    Sketcher.Constraint("DistanceY", -1, 1, 45, 3, 50.0),
    Sketcher.Constraint("DistanceX", -1, 1, 46, 3, 112.0),
    Sketcher.Constraint("DistanceY", -1, 1, 46, 3, 112.0),
    Sketcher.Constraint("DistanceY", -1, 1, 47, 3, 96.0),
    Sketcher.Constraint("DistanceY", -1, 1, 48, 3, 80.0),
    Sketcher.Constraint("DistanceX", -1, 1, 49, 3, 178.0),
    Sketcher.Constraint("DistanceX", -1, 1, 50, 3, 144.0),
    Sketcher.Constraint("DistanceY", -1, 1, 53, 3, 75.0),
    Sketcher.Constraint("DistanceY", -1, 1, 54, 3, 64.0),
    Sketcher.Constraint("DistanceY", -1, 1, 55, 3, 48.0),
    Sketcher.Constraint("DistanceX", -1, 1, 58, 3, 190.0),
    Sketcher.Constraint("DistanceX", 17, 1, 17, 2, 6.534998),
    Sketcher.Constraint("DistanceY", 21, 2, 21, 1, 238.186654),
])
pad2 = body2.newObject("PartDesign::Pad", "Pad001")
pad2.Profile = sketch2
pad2.Length = 3
pad2.Reversed = True

doc.recompute()
